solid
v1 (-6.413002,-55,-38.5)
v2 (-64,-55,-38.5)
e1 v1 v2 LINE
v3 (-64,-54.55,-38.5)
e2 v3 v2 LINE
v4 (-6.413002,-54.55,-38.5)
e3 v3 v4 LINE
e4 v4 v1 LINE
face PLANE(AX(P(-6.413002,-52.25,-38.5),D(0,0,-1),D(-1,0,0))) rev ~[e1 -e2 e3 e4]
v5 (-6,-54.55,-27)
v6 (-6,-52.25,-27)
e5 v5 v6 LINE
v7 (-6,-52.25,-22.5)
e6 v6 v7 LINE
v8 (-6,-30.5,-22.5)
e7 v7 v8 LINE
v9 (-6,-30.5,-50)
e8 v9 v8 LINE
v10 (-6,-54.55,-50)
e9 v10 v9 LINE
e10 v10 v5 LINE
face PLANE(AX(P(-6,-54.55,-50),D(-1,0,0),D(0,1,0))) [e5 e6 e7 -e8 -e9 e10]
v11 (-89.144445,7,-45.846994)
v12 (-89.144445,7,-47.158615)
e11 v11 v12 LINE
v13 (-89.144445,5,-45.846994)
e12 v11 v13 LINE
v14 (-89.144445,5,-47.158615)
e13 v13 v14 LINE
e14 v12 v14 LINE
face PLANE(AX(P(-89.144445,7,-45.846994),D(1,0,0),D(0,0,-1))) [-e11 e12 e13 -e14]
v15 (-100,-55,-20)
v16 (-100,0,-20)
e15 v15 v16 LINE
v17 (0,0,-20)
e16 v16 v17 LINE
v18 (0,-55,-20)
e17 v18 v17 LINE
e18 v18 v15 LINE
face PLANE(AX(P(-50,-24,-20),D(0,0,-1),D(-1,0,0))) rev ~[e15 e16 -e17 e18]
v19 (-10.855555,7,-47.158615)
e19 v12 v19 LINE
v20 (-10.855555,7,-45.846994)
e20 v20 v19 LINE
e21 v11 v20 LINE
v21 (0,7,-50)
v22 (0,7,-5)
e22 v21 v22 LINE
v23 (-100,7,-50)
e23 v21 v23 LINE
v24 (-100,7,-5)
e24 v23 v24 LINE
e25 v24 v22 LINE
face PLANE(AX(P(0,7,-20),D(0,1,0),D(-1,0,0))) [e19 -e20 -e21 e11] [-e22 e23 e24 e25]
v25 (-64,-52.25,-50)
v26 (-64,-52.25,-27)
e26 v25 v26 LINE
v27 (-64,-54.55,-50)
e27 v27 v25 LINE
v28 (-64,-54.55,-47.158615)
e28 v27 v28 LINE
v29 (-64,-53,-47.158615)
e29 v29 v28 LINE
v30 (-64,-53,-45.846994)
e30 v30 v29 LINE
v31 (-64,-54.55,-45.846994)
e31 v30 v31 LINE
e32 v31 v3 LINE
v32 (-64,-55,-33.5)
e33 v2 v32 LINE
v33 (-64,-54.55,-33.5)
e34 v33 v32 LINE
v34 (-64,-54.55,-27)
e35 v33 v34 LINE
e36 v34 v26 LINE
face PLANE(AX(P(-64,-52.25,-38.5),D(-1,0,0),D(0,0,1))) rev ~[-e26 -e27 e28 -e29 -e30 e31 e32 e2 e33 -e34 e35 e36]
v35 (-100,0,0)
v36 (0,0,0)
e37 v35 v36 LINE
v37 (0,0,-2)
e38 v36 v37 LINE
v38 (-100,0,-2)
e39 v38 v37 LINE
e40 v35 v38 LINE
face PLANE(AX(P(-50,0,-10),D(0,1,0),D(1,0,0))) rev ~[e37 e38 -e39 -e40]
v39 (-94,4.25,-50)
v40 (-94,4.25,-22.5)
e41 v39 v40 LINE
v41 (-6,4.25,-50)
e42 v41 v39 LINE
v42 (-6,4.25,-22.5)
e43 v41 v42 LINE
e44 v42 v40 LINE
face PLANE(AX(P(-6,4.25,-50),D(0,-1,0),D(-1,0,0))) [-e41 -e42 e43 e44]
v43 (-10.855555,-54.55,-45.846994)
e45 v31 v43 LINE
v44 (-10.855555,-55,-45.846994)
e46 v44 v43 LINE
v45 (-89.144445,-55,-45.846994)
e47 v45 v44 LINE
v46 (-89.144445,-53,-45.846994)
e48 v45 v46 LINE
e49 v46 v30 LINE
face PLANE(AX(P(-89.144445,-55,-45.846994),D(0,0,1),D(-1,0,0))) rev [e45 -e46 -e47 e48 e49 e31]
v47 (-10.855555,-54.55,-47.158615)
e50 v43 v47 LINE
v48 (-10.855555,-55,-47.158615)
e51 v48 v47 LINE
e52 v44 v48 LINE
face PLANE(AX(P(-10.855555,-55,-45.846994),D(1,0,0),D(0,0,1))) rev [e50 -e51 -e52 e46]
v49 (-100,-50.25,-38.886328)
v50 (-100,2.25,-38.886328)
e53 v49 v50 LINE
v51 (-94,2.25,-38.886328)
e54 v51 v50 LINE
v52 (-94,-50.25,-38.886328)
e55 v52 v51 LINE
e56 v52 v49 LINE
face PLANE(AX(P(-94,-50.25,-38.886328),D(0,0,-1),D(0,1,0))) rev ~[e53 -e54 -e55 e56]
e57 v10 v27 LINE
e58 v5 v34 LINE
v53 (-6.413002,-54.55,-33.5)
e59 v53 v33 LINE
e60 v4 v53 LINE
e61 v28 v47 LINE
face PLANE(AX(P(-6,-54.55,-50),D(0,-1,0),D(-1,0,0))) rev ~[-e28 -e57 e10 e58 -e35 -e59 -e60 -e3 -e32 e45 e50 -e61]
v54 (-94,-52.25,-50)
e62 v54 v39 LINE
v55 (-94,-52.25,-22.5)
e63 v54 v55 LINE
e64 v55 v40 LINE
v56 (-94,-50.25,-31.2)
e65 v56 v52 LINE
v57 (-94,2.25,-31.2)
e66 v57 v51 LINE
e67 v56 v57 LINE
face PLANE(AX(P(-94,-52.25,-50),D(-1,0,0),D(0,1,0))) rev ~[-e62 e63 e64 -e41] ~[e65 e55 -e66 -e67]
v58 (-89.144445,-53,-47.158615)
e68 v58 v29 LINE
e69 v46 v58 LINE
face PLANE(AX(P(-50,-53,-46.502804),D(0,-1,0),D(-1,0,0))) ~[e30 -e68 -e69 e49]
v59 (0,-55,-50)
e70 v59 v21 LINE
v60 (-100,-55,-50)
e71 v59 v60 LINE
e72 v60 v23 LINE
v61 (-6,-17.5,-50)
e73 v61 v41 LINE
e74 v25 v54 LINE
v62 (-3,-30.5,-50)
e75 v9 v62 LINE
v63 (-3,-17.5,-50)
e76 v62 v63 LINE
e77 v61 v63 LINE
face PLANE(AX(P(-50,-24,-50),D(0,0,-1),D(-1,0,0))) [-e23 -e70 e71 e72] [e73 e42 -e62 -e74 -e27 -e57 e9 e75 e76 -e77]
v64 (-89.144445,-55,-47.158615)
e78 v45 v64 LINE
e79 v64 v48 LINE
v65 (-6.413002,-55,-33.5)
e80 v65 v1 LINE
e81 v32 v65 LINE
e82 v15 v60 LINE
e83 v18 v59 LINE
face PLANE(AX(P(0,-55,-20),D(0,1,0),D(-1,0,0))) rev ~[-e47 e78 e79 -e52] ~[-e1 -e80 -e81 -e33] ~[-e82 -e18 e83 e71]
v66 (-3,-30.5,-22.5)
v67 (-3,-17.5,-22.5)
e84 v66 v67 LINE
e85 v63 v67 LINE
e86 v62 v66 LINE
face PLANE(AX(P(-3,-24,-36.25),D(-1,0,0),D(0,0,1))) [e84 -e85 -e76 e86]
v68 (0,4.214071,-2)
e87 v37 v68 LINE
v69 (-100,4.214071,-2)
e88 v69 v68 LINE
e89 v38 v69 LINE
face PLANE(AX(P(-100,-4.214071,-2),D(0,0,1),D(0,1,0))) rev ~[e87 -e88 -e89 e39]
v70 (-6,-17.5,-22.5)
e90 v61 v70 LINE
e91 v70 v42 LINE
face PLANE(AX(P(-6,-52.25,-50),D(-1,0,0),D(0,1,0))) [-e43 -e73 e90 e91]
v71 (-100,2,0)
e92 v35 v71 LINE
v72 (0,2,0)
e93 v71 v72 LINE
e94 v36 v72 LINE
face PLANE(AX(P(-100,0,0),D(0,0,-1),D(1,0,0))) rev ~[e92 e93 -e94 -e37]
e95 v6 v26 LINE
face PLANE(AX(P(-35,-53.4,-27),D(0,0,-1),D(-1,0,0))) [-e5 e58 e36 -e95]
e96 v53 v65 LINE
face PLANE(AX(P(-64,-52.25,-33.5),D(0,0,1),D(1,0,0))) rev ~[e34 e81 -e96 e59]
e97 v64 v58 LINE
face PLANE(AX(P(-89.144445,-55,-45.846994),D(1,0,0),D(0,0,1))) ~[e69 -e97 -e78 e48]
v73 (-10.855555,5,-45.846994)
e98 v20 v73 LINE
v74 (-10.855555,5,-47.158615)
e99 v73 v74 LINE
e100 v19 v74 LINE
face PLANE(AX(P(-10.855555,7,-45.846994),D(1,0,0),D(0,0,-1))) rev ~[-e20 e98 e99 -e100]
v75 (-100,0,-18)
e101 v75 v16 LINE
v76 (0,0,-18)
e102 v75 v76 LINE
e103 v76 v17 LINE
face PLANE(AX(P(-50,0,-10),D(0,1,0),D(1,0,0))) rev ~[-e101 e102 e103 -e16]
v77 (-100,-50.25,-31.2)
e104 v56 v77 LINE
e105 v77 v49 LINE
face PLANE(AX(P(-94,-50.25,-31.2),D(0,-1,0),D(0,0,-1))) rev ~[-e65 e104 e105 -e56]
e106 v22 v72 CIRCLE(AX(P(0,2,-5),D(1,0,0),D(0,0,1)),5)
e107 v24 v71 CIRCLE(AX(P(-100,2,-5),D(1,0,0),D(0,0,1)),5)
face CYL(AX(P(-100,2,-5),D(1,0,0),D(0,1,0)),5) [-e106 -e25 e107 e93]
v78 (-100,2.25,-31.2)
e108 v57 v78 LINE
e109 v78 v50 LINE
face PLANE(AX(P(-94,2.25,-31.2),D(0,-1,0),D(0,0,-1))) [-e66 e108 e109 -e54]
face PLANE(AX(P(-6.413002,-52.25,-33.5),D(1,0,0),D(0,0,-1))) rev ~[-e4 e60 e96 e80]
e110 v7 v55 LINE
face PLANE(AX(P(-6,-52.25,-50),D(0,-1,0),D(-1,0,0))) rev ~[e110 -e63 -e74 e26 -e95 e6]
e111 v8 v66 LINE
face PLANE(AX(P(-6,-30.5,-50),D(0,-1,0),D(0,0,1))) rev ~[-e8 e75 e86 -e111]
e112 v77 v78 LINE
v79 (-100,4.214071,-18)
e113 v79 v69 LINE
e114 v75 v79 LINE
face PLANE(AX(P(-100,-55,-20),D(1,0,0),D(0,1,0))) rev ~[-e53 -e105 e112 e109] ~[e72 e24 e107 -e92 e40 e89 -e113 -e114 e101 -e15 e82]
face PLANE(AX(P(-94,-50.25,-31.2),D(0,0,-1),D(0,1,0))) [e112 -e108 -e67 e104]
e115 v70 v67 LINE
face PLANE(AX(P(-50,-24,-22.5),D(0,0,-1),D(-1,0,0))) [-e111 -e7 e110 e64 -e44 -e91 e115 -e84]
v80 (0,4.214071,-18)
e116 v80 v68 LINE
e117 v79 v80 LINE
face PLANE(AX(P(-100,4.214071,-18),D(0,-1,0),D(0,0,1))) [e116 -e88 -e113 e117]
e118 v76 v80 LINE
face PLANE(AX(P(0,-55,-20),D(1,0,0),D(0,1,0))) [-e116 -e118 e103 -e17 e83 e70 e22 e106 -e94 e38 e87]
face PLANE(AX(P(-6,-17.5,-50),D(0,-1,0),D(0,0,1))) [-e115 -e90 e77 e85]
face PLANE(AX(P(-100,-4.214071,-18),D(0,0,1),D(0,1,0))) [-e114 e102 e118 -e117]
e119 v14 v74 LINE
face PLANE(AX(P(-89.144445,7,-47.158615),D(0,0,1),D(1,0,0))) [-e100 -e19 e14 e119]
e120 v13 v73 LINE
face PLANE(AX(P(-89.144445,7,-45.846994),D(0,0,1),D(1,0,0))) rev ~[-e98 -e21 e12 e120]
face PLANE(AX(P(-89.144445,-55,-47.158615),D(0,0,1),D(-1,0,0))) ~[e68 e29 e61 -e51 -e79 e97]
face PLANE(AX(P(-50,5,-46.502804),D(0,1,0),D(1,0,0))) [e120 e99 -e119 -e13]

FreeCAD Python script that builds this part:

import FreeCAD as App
import Part
import Sketcher

V = App.Vector
Q = App.Units.Quantity


def edges_at(feature, points):
    """Names of the edges that pass closest to the given points."""
    edges = feature.Shape.Edges
    near = lambda p: min(range(len(edges)), key=lambda i: edges[i].distToShape(Part.Vertex(*p))[0])
    return sorted({f"Edge{near(p) + 1}" for p in points})

doc = App.newDocument("Part")
body = doc.addObject("PartDesign::Body", "Body")

# Sketch on XZ plane
sketch1 = body.newObject("Sketcher::SketchObject", "Sketch")
sketch1.AttachmentSupport = (doc.getObject("XZ_Plane"), [""])
sketch1.MapMode = "FlatFace"
sketch1.addGeometry([
    Part.LineSegment(V(-100, -20, 0), V(-100, 0, 0)),
    Part.LineSegment(V(-100, 0, 0), V(0, 0, 0)),
    Part.LineSegment(V(0, 0, 0), V(0, -20, 0)),
    Part.LineSegment(V(0, -20, 0), V(-100, -20, 0)),
], False)
sketch1.addConstraint([
    Sketcher.Constraint("Coincident", 0, 2, 1, 1),
    Sketcher.Constraint("Coincident", 1, 2, 2, 1),
    Sketcher.Constraint("Coincident", 2, 2, 3, 1),
    Sketcher.Constraint("Coincident", 3, 2, 0, 1),
    Sketcher.Constraint("Vertical", 0),
    Sketcher.Constraint("Horizontal", 1),
    Sketcher.Constraint("Vertical", 2),
    Sketcher.Constraint("Horizontal", 3),
    Sketcher.Constraint("Coincident", 1, 2, -1, 1),
    Sketcher.Constraint("DistanceX", 1, 1, 1, 2, Q("100 mm")),
    Sketcher.Constraint("DistanceY", 0, 1, 0, 2, Q("20 mm")),
])
pad1 = body.newObject("PartDesign::Pad", "Pad")
pad1.Profile = sketch1
pad1.Length = 7
pad1.Reversed = True

# Sketch on YZ plane
sketch2 = body.newObject("Sketcher::SketchObject", "Sketch001")
sketch2.AttachmentSupport = (doc.getObject("YZ_Plane"), [""])
sketch2.MapMode = "FlatFace"
sketch2.AttachmentOffset = App.Placement(V(0, 0, -100), App.Rotation())
sketch2.addGeometry([
    Part.LineSegment(V(4.214071, -18, 0), V(-4.214071, -18, 0)),
    Part.LineSegment(V(-4.214071, -18, 0), V(-4.214071, -2, 0)),
    Part.LineSegment(V(-4.214071, -2, 0), V(4.214071, -2, 0)),
    Part.LineSegment(V(4.214071, -2, 0), V(4.214071, -18, 0)),
], False)
sketch2.addConstraint([
    Sketcher.Constraint("Coincident", 0, 2, 1, 1),
    Sketcher.Constraint("Coincident", 1, 2, 2, 1),
    Sketcher.Constraint("Coincident", 2, 2, 3, 1),
    Sketcher.Constraint("Coincident", 3, 2, 0, 1),
    Sketcher.Constraint("Horizontal", 0),
    Sketcher.Constraint("Vertical", 1),
    Sketcher.Constraint("Horizontal", 2),
    Sketcher.Constraint("Vertical", 3),
    Sketcher.Constraint("DistanceY", 1, 1, 1, 2, Q("16 mm")),
    Sketcher.Constraint("DistanceY", 0, 2, -1, 1, Q("18 mm")),
    Sketcher.Constraint("DistanceX", 0, 2, 0, 1, Q("8.428143 mm")),
    Sketcher.Constraint("DistanceX", 0, 2, -1, 1, Q("4.214071 mm")),
])
pocket1 = body.newObject("PartDesign::Pocket", "Pocket")
pocket1.Profile = sketch2
pocket1.Type = "ThroughAll"
pocket1.Reversed = True

# Sketch on XY plane
sketch3 = body.newObject("Sketcher::SketchObject", "Sketch002")
sketch3.AttachmentSupport = (doc.getObject("XY_Plane"), [""])
sketch3.MapMode = "FlatFace"
sketch3.AttachmentOffset = App.Placement(V(0, 0, -20), App.Rotation())
sketch3.addGeometry([
    Part.LineSegment(V(0, 7, 0), V(0, -55, 0)),
    Part.LineSegment(V(0, -55, 0), V(-100, -55, 0)),
    Part.LineSegment(V(-100, -55, 0), V(-100, 7, 0)),
    Part.LineSegment(V(-100, 7, 0), V(0, 7, 0)),
], False)
sketch3.addConstraint([
    Sketcher.Constraint("Coincident", 0, 2, 1, 1),
    Sketcher.Constraint("Coincident", 1, 2, 2, 1),
    Sketcher.Constraint("Coincident", 2, 2, 3, 1),
    Sketcher.Constraint("Coincident", 3, 2, 0, 1),
    Sketcher.Constraint("Vertical", 0),
    Sketcher.Constraint("Horizontal", 1),
    Sketcher.Constraint("Vertical", 2),
    Sketcher.Constraint("Horizontal", 3),
    Sketcher.Constraint("PointOnObject", 0, 2, -2),
    Sketcher.Constraint("DistanceX", 1, 2, 1, 1, Q("100 mm")),
    Sketcher.Constraint("DistanceY", 0, 2, 0, 1, Q("62 mm")),
    Sketcher.Constraint("DistanceY", 0, 2, -1, 1, Q("55 mm")),
])
pad2 = body.newObject("PartDesign::Pad", "Pad001")
pad2.Profile = sketch3
pad2.Length = 30
pad2.Reversed = True

# Sketch on XY plane
sketch4 = body.newObject("Sketcher::SketchObject", "Sketch003")
sketch4.AttachmentSupport = (doc.getObject("XY_Plane"), [""])
sketch4.MapMode = "FlatFace"
sketch4.AttachmentOffset = App.Placement(V(0, 0, -50), App.Rotation())
sketch4.addGeometry([
    Part.LineSegment(V(-6, 4.25, 0), V(-6, -52.25, 0)),
    Part.LineSegment(V(-6, -52.25, 0), V(-94, -52.25, 0)),
    Part.LineSegment(V(-94, -52.25, 0), V(-94, 4.25, 0)),
    Part.LineSegment(V(-94, 4.25, 0), V(-6, 4.25, 0)),
], False)
sketch4.addConstraint([
    Sketcher.Constraint("Coincident", 0, 2, 1, 1),
    Sketcher.Constraint("Coincident", 1, 2, 2, 1),
    Sketcher.Constraint("Coincident", 2, 2, 3, 1),
    Sketcher.Constraint("Coincident", 3, 2, 0, 1),
    Sketcher.Constraint("Vertical", 0),
    Sketcher.Constraint("Horizontal", 1),
    Sketcher.Constraint("Vertical", 2),
    Sketcher.Constraint("Horizontal", 3),
    Sketcher.Constraint("DistanceX", 1, 2, 1, 1, Q("88 mm")),
    Sketcher.Constraint("DistanceY", 0, 2, 0, 1, Q("56.5 mm")),
    Sketcher.Constraint("DistanceX", 0, 2, -1, 1, Q("6 mm")),
    Sketcher.Constraint("DistanceY", 0, 2, -1, 1, Q("52.25 mm")),
])
pocket2 = body.newObject("PartDesign::Pocket", "Pocket001")
pocket2.Profile = sketch4
pocket2.Length = 27.5
pocket2.Reversed = True

# Sketch on YZ plane
sketch5 = body.newObject("Sketcher::SketchObject", "Sketch004")
sketch5.AttachmentSupport = (doc.getObject("YZ_Plane"), [""])
sketch5.MapMode = "FlatFace"
sketch5.AttachmentOffset = App.Placement(V(0, 0, -94), App.Rotation())
sketch5.addGeometry([
    Part.LineSegment(V(2.25, -31.2, 0), V(-50.25, -31.2, 0)),
    Part.LineSegment(V(-50.25, -31.2, 0), V(-50.25, -38.886328, 0)),
    Part.LineSegment(V(-50.25, -38.886328, 0), V(2.25, -38.886328, 0)),
    Part.LineSegment(V(2.25, -38.886328, 0), V(2.25, -31.2, 0)),
], False)
sketch5.addConstraint([
    Sketcher.Constraint("Coincident", 0, 2, 1, 1),
    Sketcher.Constraint("Coincident", 1, 2, 2, 1),
    Sketcher.Constraint("Coincident", 2, 2, 3, 1),
    Sketcher.Constraint("Coincident", 3, 2, 0, 1),
    Sketcher.Constraint("Horizontal", 0),
    Sketcher.Constraint("Vertical", 1),
    Sketcher.Constraint("Horizontal", 2),
    Sketcher.Constraint("Vertical", 3),
    Sketcher.Constraint("DistanceX", 0, 2, 0, 1, Q("52.5 mm")),
    Sketcher.Constraint("DistanceY", 0, 2, -1, 1, Q("31.2 mm")),
    Sketcher.Constraint("DistanceX", 0, 2, -1, 1, Q("50.25 mm")),
    Sketcher.Constraint("DistanceY", 1, 2, 1, 1, Q("7.686328 mm")),
])
pocket3 = body.newObject("PartDesign::Pocket", "Pocket002")
pocket3.Profile = sketch5
pocket3.Type = "ThroughAll"

# Sketch on YZ plane
sketch6 = body.newObject("Sketcher::SketchObject", "Sketch005")
sketch6.AttachmentSupport = (doc.getObject("YZ_Plane"), [""])
sketch6.MapMode = "FlatFace"
sketch6.AttachmentOffset = App.Placement(V(0, 0, -6), App.Rotation())
sketch6.addGeometry([
    Part.LineSegment(V(-17.5, -50, 0), V(-30.5, -50, 0)),
    Part.LineSegment(V(-30.5, -50, 0), V(-30.5, -22.5, 0)),
    Part.LineSegment(V(-30.5, -22.5, 0), V(-17.5, -22.5, 0)),
    Part.LineSegment(V(-17.5, -22.5, 0), V(-17.5, -50, 0)),
], False)
sketch6.addConstraint([
    Sketcher.Constraint("Coincident", 0, 2, 1, 1),
    Sketcher.Constraint("Coincident", 1, 2, 2, 1),
    Sketcher.Constraint("Coincident", 2, 2, 3, 1),
    Sketcher.Constraint("Coincident", 3, 2, 0, 1),
    Sketcher.Constraint("Horizontal", 0),
    Sketcher.Constraint("Vertical", 1),
    Sketcher.Constraint("Horizontal", 2),
    Sketcher.Constraint("Vertical", 3),
    Sketcher.Constraint("DistanceX", 0, 2, 0, 1, Q("13 mm")),
    Sketcher.Constraint("DistanceY", 1, 1, 1, 2, Q("27.5 mm")),
    Sketcher.Constraint("DistanceY", 0, 2, -1, 1, Q("50 mm")),
    Sketcher.Constraint("DistanceX", 0, 2, -1, 1, Q("30.5 mm")),
])
pocket4 = body.newObject("PartDesign::Pocket", "Pocket003")
pocket4.Profile = sketch6
pocket4.Length = 3
pocket4.Reversed = True

# Sketch on XY plane
sketch7 = body.newObject("Sketcher::SketchObject", "Sketch006")
sketch7.AttachmentSupport = (doc.getObject("XY_Plane"), [""])
sketch7.MapMode = "FlatFace"
sketch7.AttachmentOffset = App.Placement(V(0, 0, -50), App.Rotation())
sketch7.addGeometry([
    Part.LineSegment(V(-6, -52.25, 0), V(-6, -54.55, 0)),
    Part.LineSegment(V(-6, -54.55, 0), V(-64, -54.55, 0)),
    Part.LineSegment(V(-64, -54.55, 0), V(-64, -52.25, 0)),
    Part.LineSegment(V(-64, -52.25, 0), V(-6, -52.25, 0)),
], False)
sketch7.addConstraint([
    Sketcher.Constraint("Coincident", 0, 2, 1, 1),
    Sketcher.Constraint("Coincident", 1, 2, 2, 1),
    Sketcher.Constraint("Coincident", 2, 2, 3, 1),
    Sketcher.Constraint("Coincident", 3, 2, 0, 1),
    Sketcher.Constraint("Vertical", 0),
    Sketcher.Constraint("Horizontal", 1),
    Sketcher.Constraint("Vertical", 2),
    Sketcher.Constraint("Horizontal", 3),
    Sketcher.Constraint("DistanceX", 1, 2, 1, 1, Q("58 mm")),
    Sketcher.Constraint("DistanceY", 0, 2, 0, 1, Q("2.3 mm")),
    Sketcher.Constraint("DistanceX", 0, 2, -1, 1, Q("6 mm")),
    Sketcher.Constraint("DistanceY", 0, 2, -1, 1, Q("54.55 mm")),
])
pocket5 = body.newObject("PartDesign::Pocket", "Pocket004")
pocket5.Profile = sketch7
pocket5.Length = 23
pocket5.Reversed = True

# Sketch on XZ plane
sketch8 = body.newObject("Sketcher::SketchObject", "Sketch007")
sketch8.AttachmentSupport = (doc.getObject("XZ_Plane"), [""])
sketch8.MapMode = "FlatFace"
sketch8.AttachmentOffset = App.Placement(V(0, 0, 52.25), App.Rotation())
sketch8.addGeometry([
    Part.LineSegment(V(-64, -38.5, 0), V(-64, -33.5, 0)),
    Part.LineSegment(V(-64, -33.5, 0), V(-6.413002, -33.5, 0)),
    Part.LineSegment(V(-6.413002, -33.5, 0), V(-6.413002, -38.5, 0)),
    Part.LineSegment(V(-6.413002, -38.5, 0), V(-64, -38.5, 0)),
], False)
sketch8.addConstraint([
    Sketcher.Constraint("Coincident", 0, 2, 1, 1),
    Sketcher.Constraint("Coincident", 1, 2, 2, 1),
    Sketcher.Constraint("Coincident", 2, 2, 3, 1),
    Sketcher.Constraint("Coincident", 3, 2, 0, 1),
    Sketcher.Constraint("Vertical", 0),
    Sketcher.Constraint("Horizontal", 1),
    Sketcher.Constraint("Vertical", 2),
    Sketcher.Constraint("Horizontal", 3),
    Sketcher.Constraint("DistanceY", 0, 1, 0, 2, Q("5 mm")),
    Sketcher.Constraint("DistanceX", 0, 2, -1, 1, Q("64 mm")),
    Sketcher.Constraint("DistanceY", 0, 2, -1, 1, Q("33.5 mm")),
    Sketcher.Constraint("DistanceX", 1, 1, 1, 2, Q("57.586998 mm")),
])
pocket6 = body.newObject("PartDesign::Pocket", "Pocket005")
pocket6.Profile = sketch8
pocket6.Length = 23
pocket6.Reversed = True

# Sketch on XZ plane
sketch9 = body.newObject("Sketcher::SketchObject", "Sketch008")
sketch9.AttachmentSupport = (doc.getObject("XZ_Plane"), [""])
sketch9.MapMode = "FlatFace"
sketch9.AttachmentOffset = App.Placement(V(0, 0, -7), App.Rotation())
sketch9.addGeometry([
    Part.LineSegment(V(-89.144445, -47.158615, 0), V(-89.144445, -45.846994, 0)),
    Part.LineSegment(V(-89.144445, -45.846994, 0), V(-10.855555, -45.846994, 0)),
    Part.LineSegment(V(-10.855555, -45.846994, 0), V(-10.855555, -47.158615, 0)),
    Part.LineSegment(V(-10.855555, -47.158615, 0), V(-89.144445, -47.158615, 0)),
], False)
sketch9.addConstraint([
    Sketcher.Constraint("Coincident", 0, 2, 1, 1),
    Sketcher.Constraint("Coincident", 1, 2, 2, 1),
    Sketcher.Constraint("Coincident", 2, 2, 3, 1),
    Sketcher.Constraint("Coincident", 3, 2, 0, 1),
    Sketcher.Constraint("Vertical", 0),
    Sketcher.Constraint("Horizontal", 1),
    Sketcher.Constraint("Vertical", 2),
    Sketcher.Constraint("Horizontal", 3),
    Sketcher.Constraint("DistanceX", 1, 1, 1, 2, Q("78.288889 mm")),
    Sketcher.Constraint("DistanceY", 0, 1, 0, 2, Q("1.311622 mm")),
    Sketcher.Constraint("DistanceX", 0, 2, -1, 1, Q("89.144445 mm")),
    Sketcher.Constraint("DistanceY", 0, 2, -1, 1, Q("45.846994 mm")),
])
pocket7 = body.newObject("PartDesign::Pocket", "Pocket006")
pocket7.Profile = sketch9
pocket7.Length = 2
pocket7.Reversed = True
doc.recompute()

datumplane = body.newObject("PartDesign::Plane", "DatumPlane")
datumplane.AttachmentSupport = (doc.getObject("XZ_Plane"), [""])
datumplane.MapMode = "FlatFace"
datumplane.AttachmentOffset = App.Placement(V(0, 0, 24), App.Rotation())
mirrored = body.newObject("PartDesign::Mirrored", "Mirrored")
mirrored.Originals = [pocket7]
mirrored.MirrorPlane = (datumplane, [""])
body.Tip = mirrored
doc.recompute()

fillet = body.newObject("PartDesign::Fillet", "Fillet")
fillet.Base = (mirrored, edges_at(mirrored, [(-50, 7, 0)]))
fillet.Radius = 5

doc.recompute()
